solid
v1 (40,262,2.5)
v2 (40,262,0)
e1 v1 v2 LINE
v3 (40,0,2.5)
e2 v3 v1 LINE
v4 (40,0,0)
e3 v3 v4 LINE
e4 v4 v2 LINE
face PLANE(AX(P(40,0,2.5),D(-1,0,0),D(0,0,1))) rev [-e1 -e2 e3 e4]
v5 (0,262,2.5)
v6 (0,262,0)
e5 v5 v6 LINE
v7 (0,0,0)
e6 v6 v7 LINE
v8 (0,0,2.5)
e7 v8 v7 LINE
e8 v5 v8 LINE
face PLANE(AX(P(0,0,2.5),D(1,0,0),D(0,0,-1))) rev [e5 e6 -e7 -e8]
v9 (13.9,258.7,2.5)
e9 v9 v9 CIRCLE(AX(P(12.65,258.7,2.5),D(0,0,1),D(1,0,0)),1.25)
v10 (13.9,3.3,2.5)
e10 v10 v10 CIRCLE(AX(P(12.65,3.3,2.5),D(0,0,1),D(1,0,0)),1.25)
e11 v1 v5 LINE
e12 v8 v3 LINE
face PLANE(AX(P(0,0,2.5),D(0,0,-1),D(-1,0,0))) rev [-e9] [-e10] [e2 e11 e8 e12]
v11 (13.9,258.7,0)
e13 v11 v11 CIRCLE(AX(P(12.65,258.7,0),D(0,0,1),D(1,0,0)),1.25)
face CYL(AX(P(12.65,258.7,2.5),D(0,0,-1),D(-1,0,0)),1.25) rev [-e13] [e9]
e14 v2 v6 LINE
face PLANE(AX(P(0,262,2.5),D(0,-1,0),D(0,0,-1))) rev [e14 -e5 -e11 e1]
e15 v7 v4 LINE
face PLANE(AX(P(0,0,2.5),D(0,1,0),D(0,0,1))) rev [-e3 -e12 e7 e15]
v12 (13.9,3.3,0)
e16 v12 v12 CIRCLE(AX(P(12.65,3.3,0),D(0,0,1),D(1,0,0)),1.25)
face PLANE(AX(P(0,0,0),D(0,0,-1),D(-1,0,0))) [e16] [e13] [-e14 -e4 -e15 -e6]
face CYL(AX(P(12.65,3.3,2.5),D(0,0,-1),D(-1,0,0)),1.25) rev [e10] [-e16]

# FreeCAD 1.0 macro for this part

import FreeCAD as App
import Part
import Sketcher
from FreeCAD import Vector
Q = App.Units.Quantity

doc = App.newDocument("Part")
body = doc.addObject("PartDesign::Body", "Body")

# Sketch on XY plane
sketch1 = doc.addObject("Sketcher::SketchObject", "Sketch")
body.addObject(sketch1)
sketch1.AttachmentSupport = (doc.XY_Plane, [""])
sketch1.MapMode = "FlatFace"
sketch1.addGeometry(Part.LineSegment(Vector(0, 262, 0), Vector(0, 0, 0)), False)
sketch1.addGeometry(Part.LineSegment(Vector(0, 0, 0), Vector(40, 0, 0)), False)
sketch1.addGeometry(Part.LineSegment(Vector(40, 0, 0), Vector(40, 262, 0)), False)
sketch1.addGeometry(Part.LineSegment(Vector(40, 262, 0), Vector(0, 262, 0)), False)
sketch1.addGeometry(Part.Circle(Vector(12.7, 3.3, 0), Vector(0, 0, 1), 1.2), False)
sketch1.addGeometry(Part.Circle(Vector(12.7, 258.7, 0), Vector(0, 0, 1), 1.2), False)
sketch1.addConstraint(Sketcher.Constraint("Coincident", 0, 2, 1, 1))
sketch1.addConstraint(Sketcher.Constraint("Coincident", 1, 2, 2, 1))
sketch1.addConstraint(Sketcher.Constraint("Coincident", 2, 2, 3, 1))
sketch1.addConstraint(Sketcher.Constraint("Coincident", 3, 2, 0, 1))
sketch1.addConstraint(Sketcher.Constraint("Vertical", 0))
sketch1.addConstraint(Sketcher.Constraint("Horizontal", 1))
sketch1.addConstraint(Sketcher.Constraint("Vertical", 2))
sketch1.addConstraint(Sketcher.Constraint("Horizontal", 3))
sketch1.addConstraint(Sketcher.Constraint("Coincident", 0, 2, -1, 1))
sketch1.addConstraint(Sketcher.Constraint("Equal", 4, 5))
sketch1.addConstraint(Sketcher.Constraint("Vertical", 4, 3, 5, 3))
sketch1.addConstraint(Sketcher.Constraint("Diameter", 4, Q("2.5 mm")))
sketch1.addConstraint(Sketcher.Constraint("DistanceX", 1, 1, 1, 2, Q("40 mm")))
sketch1.addConstraint(Sketcher.Constraint("DistanceY", 0, 2, 0, 1, Q("262 mm")))
sketch1.addConstraint(Sketcher.Constraint("DistanceY", -1, 1, 4, 3, Q("3.3 mm")))
sketch1.addConstraint(Sketcher.Constraint("DistanceY", -1, 1, 5, 3, Q("258.7 mm")))
sketch1.addConstraint(Sketcher.Constraint("DistanceX", -1, 1, 4, 3, Q("12.65 mm")))
pad1 = doc.addObject("PartDesign::Pad", "Pad")
body.addObject(pad1)
pad1.Profile = sketch1
pad1.Length = 2.5

doc.recompute()
